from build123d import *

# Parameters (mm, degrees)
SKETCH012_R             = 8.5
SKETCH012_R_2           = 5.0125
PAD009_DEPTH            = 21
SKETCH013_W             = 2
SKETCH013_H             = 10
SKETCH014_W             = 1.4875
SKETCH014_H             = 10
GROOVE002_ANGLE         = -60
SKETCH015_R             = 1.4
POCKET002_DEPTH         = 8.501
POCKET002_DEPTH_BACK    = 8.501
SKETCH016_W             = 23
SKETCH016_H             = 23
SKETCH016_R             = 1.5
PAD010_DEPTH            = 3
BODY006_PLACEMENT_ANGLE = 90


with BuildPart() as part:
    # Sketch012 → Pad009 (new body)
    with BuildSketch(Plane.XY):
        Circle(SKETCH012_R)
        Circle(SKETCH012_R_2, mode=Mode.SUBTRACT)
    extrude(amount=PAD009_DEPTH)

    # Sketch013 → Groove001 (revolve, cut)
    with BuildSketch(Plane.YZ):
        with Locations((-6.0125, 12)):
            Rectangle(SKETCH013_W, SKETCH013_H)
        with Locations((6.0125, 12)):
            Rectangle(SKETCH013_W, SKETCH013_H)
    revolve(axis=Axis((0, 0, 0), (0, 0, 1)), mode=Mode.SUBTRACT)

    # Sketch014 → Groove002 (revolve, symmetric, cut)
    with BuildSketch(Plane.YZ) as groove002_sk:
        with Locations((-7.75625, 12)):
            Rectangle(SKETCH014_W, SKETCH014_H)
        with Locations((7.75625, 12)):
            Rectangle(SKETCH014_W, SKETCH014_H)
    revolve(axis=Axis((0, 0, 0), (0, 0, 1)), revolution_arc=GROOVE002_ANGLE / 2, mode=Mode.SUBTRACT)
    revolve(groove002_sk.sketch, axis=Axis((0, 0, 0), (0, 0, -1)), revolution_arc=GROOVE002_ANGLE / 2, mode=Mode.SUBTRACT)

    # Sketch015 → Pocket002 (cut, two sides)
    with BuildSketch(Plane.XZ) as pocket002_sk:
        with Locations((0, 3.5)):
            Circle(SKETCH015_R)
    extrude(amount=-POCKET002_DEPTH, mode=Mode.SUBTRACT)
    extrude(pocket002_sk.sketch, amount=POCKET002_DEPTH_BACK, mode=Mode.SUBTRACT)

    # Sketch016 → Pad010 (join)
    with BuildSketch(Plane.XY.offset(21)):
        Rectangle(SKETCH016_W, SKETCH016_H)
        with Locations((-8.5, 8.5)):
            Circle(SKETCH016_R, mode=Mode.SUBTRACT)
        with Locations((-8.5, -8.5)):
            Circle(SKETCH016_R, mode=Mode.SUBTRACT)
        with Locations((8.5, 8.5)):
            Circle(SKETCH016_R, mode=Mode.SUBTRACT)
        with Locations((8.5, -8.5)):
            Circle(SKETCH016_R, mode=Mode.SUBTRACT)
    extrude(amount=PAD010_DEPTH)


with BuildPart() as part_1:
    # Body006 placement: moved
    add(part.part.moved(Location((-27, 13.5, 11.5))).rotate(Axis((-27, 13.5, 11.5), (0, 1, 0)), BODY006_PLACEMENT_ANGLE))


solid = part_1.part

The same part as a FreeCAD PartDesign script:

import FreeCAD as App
import Part
import Sketcher
Q = App.Units.Quantity


def add_polygon(sketch, points):
    """Adds a closed chain of lines whose ends are joined by coincident constraints."""
    first, n = sketch.GeometryCount, len(points)
    for a, b in zip(points, points[1:] + points[:1]):
        sketch.addGeometry(Part.LineSegment(App.Vector(*a, 0), App.Vector(*b, 0)), False)
    for i in range(n):
        sketch.addConstraint(Sketcher.Constraint("Coincident", first + i, 2, first + (i + 1) % n, 1))

doc = App.newDocument("Part")
params = doc.addObject("Spreadsheet::Sheet", "Params")
for row, (alias, value) in enumerate([
    ("sketch1_diameter", "17 mm"),
    ("pad1_length", "21 mm"),
    ("sketch2_width", "2 mm"),
    ("sketch2_height", "10 mm"),
    ("groove_angle", "360 deg"),
    ("sketch3_height", "10 mm"),
    ("groove2_angle", "30 deg"),
    ("sketch4_height", "10 mm"),
    ("groove3_angle", "30 deg"),
    ("sketch5_diameter", "2.8 mm"),
    ("sketch6_diameter", "3 mm"),
    ("sketch6_width", "23 mm"),
    ("pad2_length", "3 mm"),
], start=1):
    params.set(f"A{row}", alias)
    params.set(f"B{row}", "=" + value)
    params.setAlias(f"B{row}", alias)

body = doc.addObject("PartDesign::Body", "Body")

sketch1 = body.newObject("Sketcher::SketchObject", "Sketch")
sketch1.AttachmentSupport = (doc.getObject("XY_Plane"), [""])
sketch1.MapMode = "FlatFace"
sketch1.addGeometry([
    Part.Circle(App.Vector(0, 0, 0), App.Vector(0, 0, 1), 8),
    Part.Circle(App.Vector(0, 0, 0), App.Vector(0, 0, 1), 5),
], False)
sketch1.addConstraint([
    Sketcher.Constraint("Coincident", 0, 3, -1, 1),
    Sketcher.Constraint("Coincident", 1, 3, -1, 1),
    Sketcher.Constraint("Diameter", 0, Q("17 mm")),
    Sketcher.Constraint("Diameter", 1, Q("10.025 mm")),
])
sketch1.setExpression("Constraints[2]", "Params.sketch1_diameter")
pad1 = body.newObject("PartDesign::Pad", "Pad")
pad1.Profile = sketch1
pad1.setExpression("Length", "Params.pad1_length")

sketch2 = body.newObject("Sketcher::SketchObject", "Sketch001")
sketch2.AttachmentSupport = (doc.getObject("YZ_Plane"), [""])
sketch2.MapMode = "FlatFace"
add_polygon(sketch2, [(-7, 17), (-7, 7), (-5, 7), (-5, 17)])
add_polygon(sketch2, [(5, 17), (5, 7), (7, 7), (7, 17)])
sketch2.addConstraint([
    Sketcher.Constraint("Vertical", 0),
    Sketcher.Constraint("Horizontal", 1),
    Sketcher.Constraint("Vertical", 2),
    Sketcher.Constraint("Horizontal", 3),
    Sketcher.Constraint("Vertical", 4),
    Sketcher.Constraint("Horizontal", 5),
    Sketcher.Constraint("Vertical", 6),
    Sketcher.Constraint("Horizontal", 7),
    Sketcher.Constraint("Symmetric", 1, 2, 4, 2, -2),
    Sketcher.Constraint("Symmetric", 3, 2, 6, 2, -2),
    Sketcher.Constraint("DistanceX", 1, 1, 1, 2, Q("2 mm")),
    Sketcher.Constraint("DistanceY", 0, 2, 0, 1, Q("10 mm")),
    Sketcher.Constraint("DistanceY", -1, 1, 0, 2, Q("7 mm")),
    Sketcher.Constraint("DistanceX", 1, 2, 4, 2, Q("10.025 mm")),
])
sketch2.setExpression("Constraints[18]", "Params.sketch2_width")
sketch2.setExpression("Constraints[19]", "Params.sketch2_height")
groove = body.newObject("PartDesign::Groove", "Groove")
groove.Profile = sketch2
groove.ReferenceAxis = (sketch2, ["V_Axis"])
groove.setExpression("Angle", "Params.groove_angle")

sketch3 = body.newObject("Sketcher::SketchObject", "Sketch002")
sketch3.AttachmentSupport = (doc.getObject("YZ_Plane"), [""])
sketch3.MapMode = "FlatFace"
add_polygon(sketch3, [(-8.5, 17), (-8.5, 7), (-7, 7), (-7, 17)])
add_polygon(sketch3, [(7, 17), (7, 7), (8.5, 7), (8.5, 17)])
sketch3.addConstraint([
    Sketcher.Constraint("Vertical", 0),
    Sketcher.Constraint("Horizontal", 1),
    Sketcher.Constraint("Vertical", 2),
    Sketcher.Constraint("Horizontal", 3),
    Sketcher.Constraint("Vertical", 4),
    Sketcher.Constraint("Horizontal", 5),
    Sketcher.Constraint("Vertical", 6),
    Sketcher.Constraint("Horizontal", 7),
    Sketcher.Constraint("Symmetric", 1, 2, 4, 2, -2),
    Sketcher.Constraint("Symmetric", 3, 2, 6, 2, -2),
    Sketcher.Constraint("DistanceY", 0, 2, 0, 1, Q("10 mm")),
    Sketcher.Constraint("DistanceY", -1, 1, 0, 2, Q("7 mm")),
    Sketcher.Constraint("DistanceX", 0, 2, 5, 2, Q("17 mm")),
    Sketcher.Constraint("DistanceX", 1, 1, 1, 2, Q("1.4875 mm")),
])
sketch3.setExpression("Constraints[18]", "Params.sketch3_height")
groove2 = body.newObject("PartDesign::Groove", "Groove001")
groove2.Profile = sketch3
groove2.ReferenceAxis = (sketch3, ["V_Axis"])
groove2.setExpression("Angle", "Params.groove2_angle")
groove2.Reversed = True

sketch4 = body.newObject("Sketcher::SketchObject", "Sketch003")
sketch4.AttachmentSupport = (doc.getObject("YZ_Plane"), [""])
sketch4.MapMode = "FlatFace"
add_polygon(sketch4, [(-8.5, 17), (-8.5, 7), (-7, 7), (-7, 17)])
add_polygon(sketch4, [(7, 17), (7, 7), (8.5, 7), (8.5, 17)])
sketch4.addConstraint([
    Sketcher.Constraint("Vertical", 0),
    Sketcher.Constraint("Horizontal", 1),
    Sketcher.Constraint("Vertical", 2),
    Sketcher.Constraint("Horizontal", 3),
    Sketcher.Constraint("Vertical", 4),
    Sketcher.Constraint("Horizontal", 5),
    Sketcher.Constraint("Vertical", 6),
    Sketcher.Constraint("Horizontal", 7),
    Sketcher.Constraint("Symmetric", 1, 2, 4, 2, -2),
    Sketcher.Constraint("Symmetric", 3, 2, 6, 2, -2),
    Sketcher.Constraint("DistanceY", 0, 2, 0, 1, Q("10 mm")),
    Sketcher.Constraint("DistanceY", -1, 1, 0, 2, Q("7 mm")),
    Sketcher.Constraint("DistanceX", 0, 2, 5, 2, Q("17 mm")),
    Sketcher.Constraint("DistanceX", 1, 1, 1, 2, Q("1.4875 mm")),
])
sketch4.setExpression("Constraints[18]", "Params.sketch4_height")
groove3 = body.newObject("PartDesign::Groove", "Groove002")
groove3.Profile = sketch4
groove3.ReferenceAxis = (sketch4, ["V_Axis"])
groove3.setExpression("Angle", "Params.groove3_angle")

sketch5 = body.newObject("Sketcher::SketchObject", "Sketch004")
sketch5.AttachmentSupport = (doc.getObject("XZ_Plane"), [""])
sketch5.MapMode = "FlatFace"
sketch5.addGeometry(Part.Circle(App.Vector(0, 3.5, 0), App.Vector(0, 0, 1), 1.4), False)
sketch5.addConstraint([
    Sketcher.Constraint("PointOnObject", 0, 3, -2),
    Sketcher.Constraint("Diameter", 0, Q("2.8 mm")),
    Sketcher.Constraint("DistanceY", -1, 1, 0, 3, Q("3.5 mm")),
])
sketch5.setExpression("Constraints[1]", "Params.sketch5_diameter")
pocket1 = body.newObject("PartDesign::Pocket", "Pocket")
pocket1.Profile = sketch5
pocket1.Type = "ThroughAll"
pocket1.Midplane = True

sketch6 = body.newObject("Sketcher::SketchObject", "Sketch005")
sketch6.AttachmentSupport = (doc.getObject("XY_Plane"), [""])
sketch6.MapMode = "FlatFace"
sketch6.AttachmentOffset = App.Placement(App.Vector(0, 0, 21), App.Rotation())
add_polygon(sketch6, [(-11.5, 11.5), (-11.5, -11.5), (11.5, -11.5), (11.5, 11.5)])
sketch6.addGeometry(Part.Circle(App.Vector(-8.5, -8.5, 0), App.Vector(0, 0, 1), 1.5), False)
sketch6.addGeometry(Part.Circle(App.Vector(8.5, -8.5, 0), App.Vector(0, 0, 1), 1.5), False)
sketch6.addGeometry(Part.Circle(App.Vector(-8.5, 8.5, 0), App.Vector(0, 0, 1), 1.5), False)
sketch6.addGeometry(Part.Circle(App.Vector(8.5, 8.5, 0), App.Vector(0, 0, 1), 1.5), False)
sketch6.addConstraint([
    Sketcher.Constraint("Vertical", 0),
    Sketcher.Constraint("Horizontal", 1),
    Sketcher.Constraint("Vertical", 2),
    Sketcher.Constraint("Horizontal", 3),
    Sketcher.Constraint("Equal", 4, 5),
    Sketcher.Constraint("Equal", 5, 6),
    Sketcher.Constraint("Equal", 6, 7),
    Sketcher.Constraint("Symmetric", 5, 3, 6, 3, -1, 1),
    Sketcher.Constraint("Symmetric", 4, 3, 7, 3, -1, 1),
    Sketcher.Constraint("Symmetric", 0, 2, 2, 2, -1, 1),
    Sketcher.Constraint("Symmetric", 4, 3, 5, 3, -2),
    Sketcher.Constraint("Equal", 3, 0),
    Sketcher.Constraint("Diameter", 4, Q("3 mm")),
    Sketcher.Constraint("DistanceX", 1, 1, 1, 2, Q("23 mm")),
    Sketcher.Constraint("DistanceX", 4, 3, 5, 3, Q("17 mm")),
    Sketcher.Constraint("DistanceY", 4, 3, 6, 3, Q("17 mm")),
])
sketch6.setExpression("Constraints[16]", "Params.sketch6_diameter")
sketch6.setExpression("Constraints[17]", "Params.sketch6_width")
pad2 = body.newObject("PartDesign::Pad", "Pad001")
pad2.Profile = sketch6
pad2.setExpression("Length", "Params.pad2_length")
body2 = doc.addObject("PartDesign::Body", "Body001")
doc.recompute()

body.Placement = App.Placement(App.Vector(-27, 13.5, 11.5), App.Rotation(App.Vector(0, 1, 0), 90))
boolean = body2.newObject("PartDesign::Boolean", "Boolean")
boolean.Type = "Fuse"
boolean.addObjects([body])

doc.recompute()
